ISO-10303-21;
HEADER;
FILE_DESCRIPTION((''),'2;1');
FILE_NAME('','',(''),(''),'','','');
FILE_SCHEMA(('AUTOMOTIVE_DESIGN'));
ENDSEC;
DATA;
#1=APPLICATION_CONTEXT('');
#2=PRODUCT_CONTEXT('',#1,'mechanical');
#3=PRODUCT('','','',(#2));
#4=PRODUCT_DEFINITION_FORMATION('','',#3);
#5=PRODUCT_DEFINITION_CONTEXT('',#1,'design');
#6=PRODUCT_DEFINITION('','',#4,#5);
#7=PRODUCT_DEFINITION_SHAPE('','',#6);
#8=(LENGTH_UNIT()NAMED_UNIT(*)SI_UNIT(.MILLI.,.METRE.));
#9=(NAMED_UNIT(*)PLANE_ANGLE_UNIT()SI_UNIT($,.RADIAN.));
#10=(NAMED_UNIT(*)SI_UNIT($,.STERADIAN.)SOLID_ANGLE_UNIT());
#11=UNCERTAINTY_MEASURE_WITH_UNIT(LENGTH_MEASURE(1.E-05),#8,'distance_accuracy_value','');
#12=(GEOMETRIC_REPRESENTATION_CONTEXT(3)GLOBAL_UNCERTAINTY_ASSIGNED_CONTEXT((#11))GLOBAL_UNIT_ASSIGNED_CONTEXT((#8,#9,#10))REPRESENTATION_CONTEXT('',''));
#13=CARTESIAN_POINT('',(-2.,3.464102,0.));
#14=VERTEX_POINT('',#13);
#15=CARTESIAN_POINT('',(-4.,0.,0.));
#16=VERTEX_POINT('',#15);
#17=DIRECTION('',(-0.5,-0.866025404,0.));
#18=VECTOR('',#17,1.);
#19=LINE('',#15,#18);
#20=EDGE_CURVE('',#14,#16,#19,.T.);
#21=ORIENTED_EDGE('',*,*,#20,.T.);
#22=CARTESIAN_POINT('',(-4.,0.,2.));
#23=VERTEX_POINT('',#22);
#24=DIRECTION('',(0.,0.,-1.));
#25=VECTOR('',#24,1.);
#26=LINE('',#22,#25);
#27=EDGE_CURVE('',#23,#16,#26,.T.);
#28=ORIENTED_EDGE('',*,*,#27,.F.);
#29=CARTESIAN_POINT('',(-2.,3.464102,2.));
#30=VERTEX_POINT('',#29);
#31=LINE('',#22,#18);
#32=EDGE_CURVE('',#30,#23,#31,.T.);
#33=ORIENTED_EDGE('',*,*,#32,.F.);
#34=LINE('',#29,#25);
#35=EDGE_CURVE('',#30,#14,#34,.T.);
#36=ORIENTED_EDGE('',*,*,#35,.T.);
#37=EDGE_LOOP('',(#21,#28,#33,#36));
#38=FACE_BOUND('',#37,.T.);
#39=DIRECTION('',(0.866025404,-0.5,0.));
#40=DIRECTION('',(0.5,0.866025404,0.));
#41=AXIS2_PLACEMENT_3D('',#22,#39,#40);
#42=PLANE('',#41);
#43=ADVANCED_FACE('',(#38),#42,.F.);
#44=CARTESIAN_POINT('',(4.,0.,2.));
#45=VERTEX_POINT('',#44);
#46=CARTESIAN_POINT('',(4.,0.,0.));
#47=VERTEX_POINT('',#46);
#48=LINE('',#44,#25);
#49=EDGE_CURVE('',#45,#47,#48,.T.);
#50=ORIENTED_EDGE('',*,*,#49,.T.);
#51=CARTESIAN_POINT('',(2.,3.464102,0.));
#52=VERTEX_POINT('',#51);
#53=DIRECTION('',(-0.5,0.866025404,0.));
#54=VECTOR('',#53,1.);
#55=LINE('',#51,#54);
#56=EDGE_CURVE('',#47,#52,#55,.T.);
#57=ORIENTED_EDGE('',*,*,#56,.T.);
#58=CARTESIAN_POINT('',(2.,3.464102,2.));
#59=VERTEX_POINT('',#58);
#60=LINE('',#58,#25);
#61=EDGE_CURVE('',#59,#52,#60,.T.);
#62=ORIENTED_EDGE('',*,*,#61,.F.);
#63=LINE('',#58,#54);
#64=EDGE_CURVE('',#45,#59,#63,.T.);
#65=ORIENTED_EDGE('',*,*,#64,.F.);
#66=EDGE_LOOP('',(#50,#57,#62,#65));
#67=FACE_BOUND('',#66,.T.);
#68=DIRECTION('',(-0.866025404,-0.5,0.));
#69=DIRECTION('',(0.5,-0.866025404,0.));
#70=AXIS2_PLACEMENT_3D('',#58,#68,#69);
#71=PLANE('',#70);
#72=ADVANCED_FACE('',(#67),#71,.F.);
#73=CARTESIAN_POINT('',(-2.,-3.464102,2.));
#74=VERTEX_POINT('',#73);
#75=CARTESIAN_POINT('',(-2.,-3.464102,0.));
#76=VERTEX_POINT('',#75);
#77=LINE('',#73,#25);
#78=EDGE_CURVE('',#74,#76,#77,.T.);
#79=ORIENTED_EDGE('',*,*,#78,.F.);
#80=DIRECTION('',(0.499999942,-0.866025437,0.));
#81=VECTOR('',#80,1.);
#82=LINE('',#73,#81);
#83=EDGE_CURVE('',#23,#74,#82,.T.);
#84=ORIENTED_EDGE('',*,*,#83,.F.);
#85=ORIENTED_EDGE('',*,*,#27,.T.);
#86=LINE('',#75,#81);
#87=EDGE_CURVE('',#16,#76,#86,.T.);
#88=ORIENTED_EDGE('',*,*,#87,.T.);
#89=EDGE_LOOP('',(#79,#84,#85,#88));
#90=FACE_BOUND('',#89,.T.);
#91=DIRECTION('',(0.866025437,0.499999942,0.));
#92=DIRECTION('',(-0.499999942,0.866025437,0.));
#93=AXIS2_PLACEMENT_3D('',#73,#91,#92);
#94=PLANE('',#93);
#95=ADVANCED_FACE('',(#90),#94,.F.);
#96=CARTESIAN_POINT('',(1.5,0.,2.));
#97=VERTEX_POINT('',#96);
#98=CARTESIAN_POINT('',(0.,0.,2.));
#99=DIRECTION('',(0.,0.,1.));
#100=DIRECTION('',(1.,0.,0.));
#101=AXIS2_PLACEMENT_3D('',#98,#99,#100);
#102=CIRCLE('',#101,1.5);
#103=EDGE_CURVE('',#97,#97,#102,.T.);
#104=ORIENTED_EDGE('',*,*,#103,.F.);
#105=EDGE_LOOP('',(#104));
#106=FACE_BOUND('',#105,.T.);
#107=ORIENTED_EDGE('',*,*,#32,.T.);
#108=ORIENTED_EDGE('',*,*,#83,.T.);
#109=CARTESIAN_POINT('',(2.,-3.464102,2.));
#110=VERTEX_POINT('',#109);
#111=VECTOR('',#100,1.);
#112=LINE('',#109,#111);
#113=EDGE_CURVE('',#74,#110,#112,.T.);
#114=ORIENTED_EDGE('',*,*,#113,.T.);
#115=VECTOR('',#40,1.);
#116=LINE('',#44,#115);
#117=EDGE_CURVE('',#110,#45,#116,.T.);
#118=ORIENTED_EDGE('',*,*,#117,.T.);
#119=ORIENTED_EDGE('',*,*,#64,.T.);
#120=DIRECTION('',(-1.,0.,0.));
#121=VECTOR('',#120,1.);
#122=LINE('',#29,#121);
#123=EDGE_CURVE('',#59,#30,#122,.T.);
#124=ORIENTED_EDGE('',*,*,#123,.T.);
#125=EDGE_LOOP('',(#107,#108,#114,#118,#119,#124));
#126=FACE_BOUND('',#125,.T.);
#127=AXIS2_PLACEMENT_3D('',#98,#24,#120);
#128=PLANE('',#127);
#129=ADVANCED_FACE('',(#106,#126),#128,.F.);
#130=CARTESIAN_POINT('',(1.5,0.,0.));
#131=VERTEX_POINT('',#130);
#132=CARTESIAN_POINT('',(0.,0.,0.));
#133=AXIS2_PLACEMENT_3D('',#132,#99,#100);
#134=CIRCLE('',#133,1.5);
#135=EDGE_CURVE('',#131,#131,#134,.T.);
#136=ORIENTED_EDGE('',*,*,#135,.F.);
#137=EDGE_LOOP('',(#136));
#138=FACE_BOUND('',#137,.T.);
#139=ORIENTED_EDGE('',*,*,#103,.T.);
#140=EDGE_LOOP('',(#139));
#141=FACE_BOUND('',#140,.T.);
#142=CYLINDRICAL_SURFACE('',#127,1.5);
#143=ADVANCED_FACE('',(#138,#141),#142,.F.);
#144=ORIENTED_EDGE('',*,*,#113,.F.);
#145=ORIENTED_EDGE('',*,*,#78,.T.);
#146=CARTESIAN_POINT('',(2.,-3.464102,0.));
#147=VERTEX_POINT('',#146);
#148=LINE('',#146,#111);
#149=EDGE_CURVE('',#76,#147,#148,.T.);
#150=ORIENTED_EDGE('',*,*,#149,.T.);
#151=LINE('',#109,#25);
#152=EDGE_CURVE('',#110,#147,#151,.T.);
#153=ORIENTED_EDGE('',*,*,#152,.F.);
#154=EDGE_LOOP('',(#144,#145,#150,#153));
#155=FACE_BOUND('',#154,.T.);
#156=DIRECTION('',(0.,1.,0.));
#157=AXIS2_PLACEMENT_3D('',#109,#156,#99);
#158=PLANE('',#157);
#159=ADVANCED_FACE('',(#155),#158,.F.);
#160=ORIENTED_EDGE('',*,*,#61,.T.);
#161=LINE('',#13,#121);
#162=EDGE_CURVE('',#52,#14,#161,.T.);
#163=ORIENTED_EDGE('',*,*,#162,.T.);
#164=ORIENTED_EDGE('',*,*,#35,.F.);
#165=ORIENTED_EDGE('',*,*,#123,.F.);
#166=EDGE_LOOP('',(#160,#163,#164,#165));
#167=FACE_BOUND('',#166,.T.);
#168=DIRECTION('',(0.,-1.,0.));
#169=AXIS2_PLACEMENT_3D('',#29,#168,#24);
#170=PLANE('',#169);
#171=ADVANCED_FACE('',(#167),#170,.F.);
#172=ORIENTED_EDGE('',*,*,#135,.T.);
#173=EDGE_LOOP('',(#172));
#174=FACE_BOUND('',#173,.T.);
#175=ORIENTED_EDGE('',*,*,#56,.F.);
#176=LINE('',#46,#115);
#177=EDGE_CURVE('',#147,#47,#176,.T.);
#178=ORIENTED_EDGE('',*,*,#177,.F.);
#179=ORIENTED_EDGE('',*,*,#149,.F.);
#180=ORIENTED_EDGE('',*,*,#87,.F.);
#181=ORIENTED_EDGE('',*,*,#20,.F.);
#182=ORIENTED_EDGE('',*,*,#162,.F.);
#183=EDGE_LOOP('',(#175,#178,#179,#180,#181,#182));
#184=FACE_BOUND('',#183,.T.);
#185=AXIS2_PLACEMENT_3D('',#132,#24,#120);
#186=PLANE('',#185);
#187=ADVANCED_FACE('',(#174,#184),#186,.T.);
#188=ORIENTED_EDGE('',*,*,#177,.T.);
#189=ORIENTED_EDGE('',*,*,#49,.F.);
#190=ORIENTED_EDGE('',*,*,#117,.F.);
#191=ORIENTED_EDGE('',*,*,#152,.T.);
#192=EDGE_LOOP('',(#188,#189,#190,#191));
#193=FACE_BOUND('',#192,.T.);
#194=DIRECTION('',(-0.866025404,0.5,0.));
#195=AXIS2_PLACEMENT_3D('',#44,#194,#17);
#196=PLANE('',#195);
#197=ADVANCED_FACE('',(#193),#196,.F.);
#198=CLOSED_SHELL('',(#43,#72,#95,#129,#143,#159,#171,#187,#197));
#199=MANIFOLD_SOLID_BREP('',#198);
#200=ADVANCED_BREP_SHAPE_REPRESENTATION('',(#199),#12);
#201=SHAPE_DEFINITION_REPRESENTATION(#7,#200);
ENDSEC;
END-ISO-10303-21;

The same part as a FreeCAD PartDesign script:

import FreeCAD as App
import Part
import Sketcher
Q = App.Units.Quantity


def add_polygon(sketch, points):
    """Adds a closed chain of lines whose ends are joined by coincident constraints."""
    first, n = sketch.GeometryCount, len(points)
    for a, b in zip(points, points[1:] + points[:1]):
        sketch.addGeometry(Part.LineSegment(App.Vector(*a, 0), App.Vector(*b, 0)), False)
    for i in range(n):
        sketch.addConstraint(Sketcher.Constraint("Coincident", first + i, 2, first + (i + 1) % n, 1))

doc = App.newDocument("Part")
body = doc.addObject("PartDesign::Body", "Body")

# Sketch on XY plane
sketch1 = body.newObject("Sketcher::SketchObject", "Sketch")
sketch1.AttachmentSupport = (doc.getObject("XY_Plane"), [""])
sketch1.MapMode = "FlatFace"
add_polygon(sketch1, [(-2, 3.5), (-4, 0), (-2, -3.5), (2, -3.5), (4, 0), (2, 3.5)])  # lines 0-5
sketch1.addGeometry(Part.Circle(App.Vector(0, 0, 0), App.Vector(0, 0, 1), 1.5), False)  # 6
sketch1.addConstraint(Sketcher.Constraint("Horizontal", 2))
sketch1.addConstraint(Sketcher.Constraint("Horizontal", 5))
sketch1.addConstraint(Sketcher.Constraint("Coincident", 6, 3, -1, 1))
sketch1.addConstraint(Sketcher.Constraint("Symmetric", 0, 2, 3, 2, -1, 1))
sketch1.addConstraint(Sketcher.Constraint("Symmetric", 1, 2, 4, 2, -1, 1))
sketch1.addConstraint(Sketcher.Constraint("PointOnObject", 0, 2, -1))
sketch1.addConstraint(Sketcher.Constraint("Parallel", 0, 3))
sketch1.addConstraint(Sketcher.Constraint("Vertical", 2, 2, 4, 2))
sketch1.addConstraint(Sketcher.Constraint("Diameter", 6, 3.0))
sketch1.addConstraint(Sketcher.Constraint("DistanceX", 2, 1, 2, 2, 4.0))
sketch1.addConstraint(Sketcher.Constraint("Angle", 0, Q("-120 deg")))
sketch1.addConstraint(Sketcher.Constraint("Distance", 0, 4.0))
pad1 = body.newObject("PartDesign::Pad", "Pad")
pad1.Profile = sketch1
pad1.Length = 2

doc.recompute()
